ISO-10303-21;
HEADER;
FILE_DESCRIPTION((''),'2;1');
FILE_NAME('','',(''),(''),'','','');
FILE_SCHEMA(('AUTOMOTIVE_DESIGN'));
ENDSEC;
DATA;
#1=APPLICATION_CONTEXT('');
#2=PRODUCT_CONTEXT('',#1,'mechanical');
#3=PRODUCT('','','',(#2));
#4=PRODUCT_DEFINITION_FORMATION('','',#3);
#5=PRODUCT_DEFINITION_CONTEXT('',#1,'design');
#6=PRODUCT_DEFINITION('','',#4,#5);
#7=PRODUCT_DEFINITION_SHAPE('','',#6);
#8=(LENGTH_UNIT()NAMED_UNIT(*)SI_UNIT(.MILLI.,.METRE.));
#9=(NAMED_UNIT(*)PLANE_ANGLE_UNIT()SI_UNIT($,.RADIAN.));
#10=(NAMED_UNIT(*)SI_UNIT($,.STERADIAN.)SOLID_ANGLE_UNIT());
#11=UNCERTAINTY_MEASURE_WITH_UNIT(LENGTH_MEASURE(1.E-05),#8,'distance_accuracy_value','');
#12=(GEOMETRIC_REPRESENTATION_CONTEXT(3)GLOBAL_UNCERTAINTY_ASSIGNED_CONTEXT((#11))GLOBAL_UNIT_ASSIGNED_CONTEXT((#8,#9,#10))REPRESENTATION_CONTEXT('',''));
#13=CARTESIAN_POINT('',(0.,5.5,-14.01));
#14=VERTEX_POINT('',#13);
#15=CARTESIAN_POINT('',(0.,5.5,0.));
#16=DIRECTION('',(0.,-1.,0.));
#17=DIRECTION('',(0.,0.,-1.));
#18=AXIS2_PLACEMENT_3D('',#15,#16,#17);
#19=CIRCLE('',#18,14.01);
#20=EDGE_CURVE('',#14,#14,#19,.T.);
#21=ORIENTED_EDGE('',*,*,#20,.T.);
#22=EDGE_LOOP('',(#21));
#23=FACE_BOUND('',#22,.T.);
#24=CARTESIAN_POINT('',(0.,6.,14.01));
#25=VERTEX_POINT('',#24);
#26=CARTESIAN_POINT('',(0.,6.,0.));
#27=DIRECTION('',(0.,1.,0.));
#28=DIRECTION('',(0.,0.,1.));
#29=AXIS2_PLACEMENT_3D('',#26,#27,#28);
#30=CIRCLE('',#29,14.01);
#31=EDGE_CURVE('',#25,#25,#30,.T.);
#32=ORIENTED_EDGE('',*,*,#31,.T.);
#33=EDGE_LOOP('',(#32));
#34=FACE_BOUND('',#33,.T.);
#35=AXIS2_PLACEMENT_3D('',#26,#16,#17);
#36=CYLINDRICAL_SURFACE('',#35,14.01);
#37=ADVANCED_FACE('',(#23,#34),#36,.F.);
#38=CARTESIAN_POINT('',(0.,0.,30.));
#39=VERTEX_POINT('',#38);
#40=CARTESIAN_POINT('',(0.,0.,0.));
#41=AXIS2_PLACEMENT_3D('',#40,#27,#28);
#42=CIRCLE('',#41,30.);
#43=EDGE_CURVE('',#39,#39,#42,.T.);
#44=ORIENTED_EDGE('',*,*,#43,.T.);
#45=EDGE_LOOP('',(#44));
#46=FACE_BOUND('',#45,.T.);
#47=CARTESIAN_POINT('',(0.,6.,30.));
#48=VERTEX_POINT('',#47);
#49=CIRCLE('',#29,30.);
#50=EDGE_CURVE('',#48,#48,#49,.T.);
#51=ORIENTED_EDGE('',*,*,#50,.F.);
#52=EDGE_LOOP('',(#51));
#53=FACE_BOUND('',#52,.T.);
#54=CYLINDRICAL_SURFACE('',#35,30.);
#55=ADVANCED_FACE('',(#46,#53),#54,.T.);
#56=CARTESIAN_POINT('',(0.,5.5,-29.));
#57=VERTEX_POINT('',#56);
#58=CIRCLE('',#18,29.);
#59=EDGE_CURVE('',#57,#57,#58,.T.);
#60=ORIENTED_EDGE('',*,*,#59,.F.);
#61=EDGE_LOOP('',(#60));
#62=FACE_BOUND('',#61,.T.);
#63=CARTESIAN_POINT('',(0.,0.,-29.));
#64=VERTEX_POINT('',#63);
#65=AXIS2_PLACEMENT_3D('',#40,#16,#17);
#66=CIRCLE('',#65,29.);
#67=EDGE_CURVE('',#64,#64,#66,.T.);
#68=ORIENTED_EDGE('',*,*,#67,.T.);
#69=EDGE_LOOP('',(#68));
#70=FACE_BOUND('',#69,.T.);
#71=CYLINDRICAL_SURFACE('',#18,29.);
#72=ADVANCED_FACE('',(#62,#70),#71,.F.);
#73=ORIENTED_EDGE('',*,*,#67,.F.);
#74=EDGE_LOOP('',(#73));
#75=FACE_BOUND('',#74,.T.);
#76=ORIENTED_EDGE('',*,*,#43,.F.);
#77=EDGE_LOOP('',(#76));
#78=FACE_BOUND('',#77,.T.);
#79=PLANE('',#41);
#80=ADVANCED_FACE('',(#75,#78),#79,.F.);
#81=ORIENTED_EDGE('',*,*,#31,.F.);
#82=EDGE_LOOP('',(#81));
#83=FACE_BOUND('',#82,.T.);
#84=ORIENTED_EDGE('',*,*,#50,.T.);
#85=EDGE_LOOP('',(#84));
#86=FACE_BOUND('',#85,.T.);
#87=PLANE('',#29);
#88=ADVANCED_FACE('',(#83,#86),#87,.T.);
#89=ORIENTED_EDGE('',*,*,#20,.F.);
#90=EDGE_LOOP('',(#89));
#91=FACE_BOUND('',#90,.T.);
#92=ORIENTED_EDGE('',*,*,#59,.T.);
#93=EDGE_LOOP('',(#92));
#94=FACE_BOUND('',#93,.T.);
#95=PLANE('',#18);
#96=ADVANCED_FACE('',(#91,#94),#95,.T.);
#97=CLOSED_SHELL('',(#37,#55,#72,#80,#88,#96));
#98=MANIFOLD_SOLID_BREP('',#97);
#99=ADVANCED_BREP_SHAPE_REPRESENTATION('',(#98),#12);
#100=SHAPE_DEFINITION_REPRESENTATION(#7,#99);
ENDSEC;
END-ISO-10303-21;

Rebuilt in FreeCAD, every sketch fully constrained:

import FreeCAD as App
import Part
import Sketcher

V = App.Vector
Q = App.Units.Quantity

doc = App.newDocument("Part")
body = doc.addObject("PartDesign::Body", "Body")

sketch1 = body.newObject("Sketcher::SketchObject", "Sketch")
sketch1.AttachmentSupport = (doc.getObject("XZ_Plane"), [""])
sketch1.MapMode = "FlatFace"
sketch1.addGeometry([
    Part.Circle(V(0, 0, 0), V(0, 0, 1), 30),
    Part.Circle(V(0, 0, 0), V(0, 0, 1), 14),
], False)
sketch1.addConstraint([
    Sketcher.Constraint("Coincident", 0, 3, -1, 1),
    Sketcher.Constraint("Coincident", 1, 3, -1, 1),
    Sketcher.Constraint("Diameter", 0, Q("60 mm")),
    Sketcher.Constraint("Diameter", 1, Q("28.02 mm")),
])
pad1 = body.newObject("PartDesign::Pad", "Pad")
pad1.Profile = sketch1
pad1.Length = 6
pad1.Reversed = True

sketch2 = body.newObject("Sketcher::SketchObject", "Sketch001")
sketch2.AttachmentSupport = (doc.getObject("XZ_Plane"), [""])
sketch2.MapMode = "FlatFace"
sketch2.addGeometry(Part.Circle(V(0, 0, 0), V(0, 0, 1), 29), False)
sketch2.addConstraint([
    Sketcher.Constraint("Coincident", 0, 3, -1, 1),
    Sketcher.Constraint("Diameter", 0, Q("58 mm")),
])
pocket1 = body.newObject("PartDesign::Pocket", "Pocket")
pocket1.Profile = sketch2
pocket1.Length = 5.5

doc.recompute()
